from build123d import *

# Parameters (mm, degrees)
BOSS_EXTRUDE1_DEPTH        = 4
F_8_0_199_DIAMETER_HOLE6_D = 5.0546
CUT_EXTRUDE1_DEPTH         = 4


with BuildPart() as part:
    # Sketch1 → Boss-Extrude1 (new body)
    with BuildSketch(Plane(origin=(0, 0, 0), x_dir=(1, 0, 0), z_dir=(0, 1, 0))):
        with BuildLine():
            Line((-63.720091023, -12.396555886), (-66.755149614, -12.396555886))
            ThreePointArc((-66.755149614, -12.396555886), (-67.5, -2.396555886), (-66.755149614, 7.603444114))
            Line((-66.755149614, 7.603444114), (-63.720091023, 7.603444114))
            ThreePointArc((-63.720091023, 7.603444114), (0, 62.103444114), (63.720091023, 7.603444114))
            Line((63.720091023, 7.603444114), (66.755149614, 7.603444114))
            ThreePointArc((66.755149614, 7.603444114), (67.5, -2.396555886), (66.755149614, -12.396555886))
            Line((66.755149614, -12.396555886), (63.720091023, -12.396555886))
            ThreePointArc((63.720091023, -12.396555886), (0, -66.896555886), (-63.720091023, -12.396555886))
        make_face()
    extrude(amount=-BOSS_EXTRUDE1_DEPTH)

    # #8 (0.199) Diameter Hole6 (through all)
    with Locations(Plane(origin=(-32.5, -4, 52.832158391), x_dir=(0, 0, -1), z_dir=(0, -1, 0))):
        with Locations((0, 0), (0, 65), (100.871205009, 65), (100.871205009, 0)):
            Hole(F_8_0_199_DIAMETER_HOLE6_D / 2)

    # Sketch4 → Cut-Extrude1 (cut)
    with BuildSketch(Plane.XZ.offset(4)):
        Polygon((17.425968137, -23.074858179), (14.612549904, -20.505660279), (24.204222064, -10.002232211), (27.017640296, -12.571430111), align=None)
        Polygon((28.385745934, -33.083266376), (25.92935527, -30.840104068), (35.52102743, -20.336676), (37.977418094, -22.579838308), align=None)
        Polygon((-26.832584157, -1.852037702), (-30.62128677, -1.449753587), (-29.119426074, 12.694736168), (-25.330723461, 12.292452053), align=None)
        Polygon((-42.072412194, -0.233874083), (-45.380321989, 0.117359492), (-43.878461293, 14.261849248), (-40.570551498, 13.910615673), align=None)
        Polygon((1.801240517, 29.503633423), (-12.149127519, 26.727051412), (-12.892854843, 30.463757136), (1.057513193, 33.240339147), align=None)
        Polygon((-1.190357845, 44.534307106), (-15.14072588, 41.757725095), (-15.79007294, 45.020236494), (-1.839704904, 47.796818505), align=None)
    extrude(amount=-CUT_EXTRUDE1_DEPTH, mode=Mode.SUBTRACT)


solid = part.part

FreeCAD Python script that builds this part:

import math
import FreeCAD as App
import Part
import Sketcher

V = App.Vector
Q = App.Units.Quantity

doc = App.newDocument("Part")
params = doc.addObject("Spreadsheet::Sheet", "Params")
for row, (alias, value) in enumerate([
    ("sketch1_radius", "64.5 mm"),
    ("sketch1_radius2", "67.5 mm"),
    ("pad1_length", "4 mm"),
    ("hole_diameter", "5.0546 mm"),
    ("sketch3_length", "3.81 mm"),
    ("pocket1_length", "4 mm"),
], start=1):
    params.set(f"A{row}", alias)
    params.set(f"B{row}", "=" + value)
    params.setAlias(f"B{row}", alias)

body = doc.addObject("PartDesign::Body", "Body")

# Sketch on XZ plane
sketch1 = body.newObject("Sketcher::SketchObject", "Sketch")
sketch1.AttachmentSupport = (doc.getObject("XZ_Plane"), [""])
sketch1.MapMode = "FlatFace"
sketch1.addGeometry([
    Part.LineSegment(V(-66.8, 12.4, 0), V(-63.7, 12.4, 0)),  # 0
    Part.ArcOfCircle(Part.Circle(V(0, 2.4, 0), V(0, 0, 1), 64.5), math.radians(9), math.radians(171)),  # 1
    Part.LineSegment(V(63.7, 12.4, 0), V(66.8, 12.4, 0)),  # 2
    Part.ArcOfCircle(Part.Circle(V(0, 2.4, 0), V(0, 0, 1), 67.5), math.radians(-8.52), math.radians(8.52)),  # 3
    Part.LineSegment(V(66.8, -7.6, 0), V(63.7, -7.6, 0)),  # 4
    Part.ArcOfCircle(Part.Circle(V(0, 2.4, 0), V(0, 0, 1), 64.5), math.radians(-171), math.radians(-9)),  # 5
    Part.LineSegment(V(-63.7, -7.6, 0), V(-66.8, -7.6, 0)),  # 6
    Part.ArcOfCircle(Part.Circle(V(0, 2.4, 0), V(0, 0, 1), 67.5), math.radians(171.48), math.radians(188.52)),  # 7
], False)
sketch1.addConstraint([
    Sketcher.Constraint("Coincident", 0, 2, 1, 2),
    Sketcher.Constraint("Coincident", 1, 1, 2, 1),
    Sketcher.Constraint("Coincident", 2, 2, 3, 2),
    Sketcher.Constraint("Coincident", 3, 1, 4, 1),
    Sketcher.Constraint("Coincident", 4, 2, 5, 2),
    Sketcher.Constraint("Coincident", 5, 1, 6, 1),
    Sketcher.Constraint("Coincident", 6, 2, 7, 2),
    Sketcher.Constraint("Coincident", 7, 1, 0, 1),
    Sketcher.Constraint("Horizontal", 0),
    Sketcher.Constraint("Horizontal", 2),
    Sketcher.Constraint("Horizontal", 4),
    Sketcher.Constraint("Horizontal", 6),
    Sketcher.Constraint("Coincident", 3, 3, 1, 3),
    Sketcher.Constraint("Coincident", 5, 3, 1, 3),
    Sketcher.Constraint("Coincident", 7, 3, 1, 3),
    Sketcher.Constraint("Equal", 1, 5),
    Sketcher.Constraint("Equal", 3, 7),
    Sketcher.Constraint("Symmetric", 0, 2, 1, 1, -2),
    Sketcher.Constraint("Horizontal", 4, 2, 5, 1),
    Sketcher.Constraint("Vertical", 2, 2, 3, 1),
    Sketcher.Constraint("Radius", 1, Q("64.5 mm")),
    Sketcher.Constraint("Radius", 3, Q("67.5 mm")),
    Sketcher.Constraint("DistanceY", 7, 3, 0, 2, Q("10 mm")),
    Sketcher.Constraint("DistanceY", -1, 1, 1, 3, Q("2.396556 mm")),
])
sketch1.setExpression("Constraints[20]", "Params.sketch1_radius")
sketch1.setExpression("Constraints[21]", "Params.sketch1_radius2")
pad1 = body.newObject("PartDesign::Pad", "Pad")
pad1.Profile = sketch1
pad1.setExpression("Length", "Params.pad1_length")

# Sketch on XZ plane
sketch2 = body.newObject("Sketcher::SketchObject", "Sketch001")
sketch2.AttachmentSupport = (doc.getObject("XZ_Plane"), [""])
sketch2.MapMode = "FlatFace"
sketch2.AttachmentOffset = App.Placement(V(0, 0, 4), App.Rotation())
sketch2.addGeometry([
    Part.Circle(V(-32.5, 52.8, 0), V(0, 0, 1), 2.5),
    Part.Circle(V(32.5, 52.8, 0), V(0, 0, 1), 2.5),
    Part.Circle(V(32.5, -48, 0), V(0, 0, 1), 2.5),
    Part.Circle(V(-32.5, -48, 0), V(0, 0, 1), 2.5),
], False)
sketch2.addConstraint([
    Sketcher.Constraint("Equal", 0, 1),
    Sketcher.Constraint("Equal", 1, 2),
    Sketcher.Constraint("Equal", 2, 3),
    Sketcher.Constraint("Symmetric", 0, 3, 1, 3, -2),
    Sketcher.Constraint("Symmetric", 2, 3, 3, 3, -2),
    Sketcher.Constraint("Vertical", 1, 3, 2, 3),
    Sketcher.Constraint("DistanceX", 0, 3, 1, 3, Q("65 mm")),
    Sketcher.Constraint("Diameter", 0, Q("5.0546 mm")),
    Sketcher.Constraint("DistanceY", -1, 1, 0, 3, Q("52.832158 mm")),
    Sketcher.Constraint("DistanceY", 2, 3, -1, 1, Q("48.039047 mm")),
])
doc.recompute()
hole = body.newObject("PartDesign::Hole", "Hole")
hole.Profile = sketch2
hole.ThreadType = "None"
hole.setExpression("Diameter", "Params.hole_diameter")
hole.DepthType = "ThroughAll"

# Sketch on XZ plane
sketch3 = body.newObject("Sketcher::SketchObject", "Sketch002")
sketch3.AttachmentSupport = (doc.getObject("XZ_Plane"), [""])
sketch3.MapMode = "FlatFace"
sketch3.AttachmentOffset = App.Placement(V(0, 0, 4), App.Rotation())
sketch3.addGeometry([
    Part.LineSegment(V(14.6, -20.5, 0), V(17.4, -23.1, 0)),  # 0
    Part.LineSegment(V(17.4, -23.1, 0), V(27, -12.6, 0)),  # 1
    Part.LineSegment(V(27, -12.6, 0), V(24.2, -10, 0)),  # 2
    Part.LineSegment(V(24.2, -10, 0), V(14.6, -20.5, 0)),  # 3
    Part.LineSegment(V(25.9, -30.8, 0), V(28.4, -33.1, 0)),  # 4
    Part.LineSegment(V(28.4, -33.1, 0), V(38, -22.6, 0)),  # 5
    Part.LineSegment(V(38, -22.6, 0), V(35.5, -20.3, 0)),  # 6
    Part.LineSegment(V(35.5, -20.3, 0), V(25.9, -30.8, 0)),  # 7
    Part.LineSegment(V(-30.6, -1.4, 0), V(-26.8, -1.9, 0)),  # 8
    Part.LineSegment(V(-26.8, -1.9, 0), V(-25.3, 12.3, 0)),  # 9
    Part.LineSegment(V(-25.3, 12.3, 0), V(-29.1, 12.7, 0)),  # 10
    Part.LineSegment(V(-29.1, 12.7, 0), V(-30.6, -1.4, 0)),  # 11
    Part.LineSegment(V(-45.4, 0.1, 0), V(-42.1, -0.2, 0)),  # 12
    Part.LineSegment(V(-42.1, -0.2, 0), V(-40.6, 13.9, 0)),  # 13
    Part.LineSegment(V(-40.6, 13.9, 0), V(-43.9, 14.3, 0)),  # 14
    Part.LineSegment(V(-43.9, 14.3, 0), V(-45.4, 0.1, 0)),  # 15
    Part.LineSegment(V(-12.1, 26.7, 0), V(1.8, 29.5, 0)),  # 16
    Part.LineSegment(V(1.8, 29.5, 0), V(1.1, 33.2, 0)),  # 17
    Part.LineSegment(V(1.1, 33.2, 0), V(-12.9, 30.5, 0)),  # 18
    Part.LineSegment(V(-12.9, 30.5, 0), V(-12.1, 26.7, 0)),  # 19
    Part.LineSegment(V(-15.1, 41.8, 0), V(-1.2, 44.5, 0)),  # 20
    Part.LineSegment(V(-1.2, 44.5, 0), V(-1.8, 47.8, 0)),  # 21
    Part.LineSegment(V(-1.8, 47.8, 0), V(-15.8, 45, 0)),  # 22
    Part.LineSegment(V(-15.8, 45, 0), V(-15.1, 41.8, 0)),  # 23
], False)
sketch3.addConstraint([
    Sketcher.Constraint("Coincident", 0, 2, 1, 1),
    Sketcher.Constraint("Coincident", 1, 2, 2, 1),
    Sketcher.Constraint("Coincident", 2, 2, 3, 1),
    Sketcher.Constraint("Coincident", 3, 2, 0, 1),
    Sketcher.Constraint("Coincident", 4, 2, 5, 1),
    Sketcher.Constraint("Coincident", 5, 2, 6, 1),
    Sketcher.Constraint("Coincident", 6, 2, 7, 1),
    Sketcher.Constraint("Coincident", 7, 2, 4, 1),
    Sketcher.Constraint("Coincident", 8, 2, 9, 1),
    Sketcher.Constraint("Coincident", 9, 2, 10, 1),
    Sketcher.Constraint("Coincident", 10, 2, 11, 1),
    Sketcher.Constraint("Coincident", 11, 2, 8, 1),
    Sketcher.Constraint("Coincident", 12, 2, 13, 1),
    Sketcher.Constraint("Coincident", 13, 2, 14, 1),
    Sketcher.Constraint("Coincident", 14, 2, 15, 1),
    Sketcher.Constraint("Coincident", 15, 2, 12, 1),
    Sketcher.Constraint("Coincident", 16, 2, 17, 1),
    Sketcher.Constraint("Coincident", 17, 2, 18, 1),
    Sketcher.Constraint("Coincident", 18, 2, 19, 1),
    Sketcher.Constraint("Coincident", 19, 2, 16, 1),
    Sketcher.Constraint("Coincident", 20, 2, 21, 1),
    Sketcher.Constraint("Coincident", 21, 2, 22, 1),
    Sketcher.Constraint("Coincident", 22, 2, 23, 1),
    Sketcher.Constraint("Coincident", 23, 2, 20, 1),
    Sketcher.Constraint("Perpendicular", 0, 1),
    Sketcher.Constraint("Perpendicular", 1, 2),
    Sketcher.Constraint("Perpendicular", 2, 3),
    Sketcher.Constraint("Perpendicular", 3, 4),
    Sketcher.Constraint("Perpendicular", 4, 5),
    Sketcher.Constraint("Perpendicular", 5, 6),
    Sketcher.Constraint("Perpendicular", 6, 7),
    Sketcher.Constraint("Perpendicular", 8, 9),
    Sketcher.Constraint("Perpendicular", 9, 10),
    Sketcher.Constraint("Perpendicular", 10, 11),
    Sketcher.Constraint("Perpendicular", 11, 12),
    Sketcher.Constraint("Perpendicular", 12, 13),
    Sketcher.Constraint("Perpendicular", 13, 14),
    Sketcher.Constraint("Perpendicular", 14, 15),
    Sketcher.Constraint("Perpendicular", 16, 17),
    Sketcher.Constraint("Perpendicular", 17, 18),
    Sketcher.Constraint("Perpendicular", 18, 19),
    Sketcher.Constraint("Perpendicular", 19, 20),
    Sketcher.Constraint("Perpendicular", 20, 21),
    Sketcher.Constraint("Perpendicular", 21, 22),
    Sketcher.Constraint("Perpendicular", 22, 23),
    Sketcher.Constraint("Equal", 3, 5),
    Sketcher.Constraint("Equal", 2, 8),
    Sketcher.Constraint("Equal", 7, 9),
    Sketcher.Constraint("Equal", 6, 12),
    Sketcher.Constraint("Equal", 11, 13),
    Sketcher.Constraint("Equal", 15, 16),
    Sketcher.Constraint("Equal", 10, 17),
    Sketcher.Constraint("Equal", 18, 20),
    Sketcher.Constraint("Equal", 14, 21),
    Sketcher.Constraint("Distance", 0, Q("3.81 mm")),
    Sketcher.Constraint("Distance", 1, Q("14.224 mm")),
    Sketcher.Constraint("DistanceY", 9, 2, 19, 2, Q("14.434599 mm")),
    Sketcher.Constraint("DistanceX", 10, 2, 19, 2, Q("16.970299 mm")),
    Sketcher.Constraint("DistanceX", 20, 2, 16, 2, Q("2.991598 mm")),
    Sketcher.Constraint("DistanceX", -1, 1, 0, 2, Q("17.425968 mm")),
    Sketcher.Constraint("DistanceY", 0, 2, -1, 1, Q("23.074858 mm")),
    Sketcher.Constraint("DistanceX", -1, 1, 1, 2, Q("27.01764 mm")),
    Sketcher.Constraint("DistanceX", -1, 1, 5, 2, Q("37.977418 mm")),
    Sketcher.Constraint("DistanceY", 5, 2, -1, 1, Q("22.579838 mm")),
    Sketcher.Constraint("DistanceX", 13, 2, -1, 1, Q("40.570551 mm")),
    Sketcher.Constraint("DistanceX", 14, 2, -1, 1, Q("43.878461 mm")),
    Sketcher.Constraint("DistanceY", -1, 1, 14, 2, Q("14.261849 mm")),
    Sketcher.Constraint("DistanceX", 15, 2, -1, 1, Q("45.380322 mm")),
    Sketcher.Constraint("DistanceX", -1, 1, 16, 2, Q("1.801241 mm")),
    Sketcher.Constraint("DistanceY", -1, 1, 17, 2, Q("33.240339 mm")),
    Sketcher.Constraint("DistanceY", -1, 1, 19, 2, Q("26.727051 mm")),
    Sketcher.Constraint("DistanceY", -1, 1, 21, 2, Q("47.796819 mm")),
])
sketch3.setExpression("Constraints[54]", "Params.sketch3_length")
pocket1 = body.newObject("PartDesign::Pocket", "Pocket")
pocket1.Profile = sketch3
pocket1.setExpression("Length", "Params.pocket1_length")

doc.recompute()
